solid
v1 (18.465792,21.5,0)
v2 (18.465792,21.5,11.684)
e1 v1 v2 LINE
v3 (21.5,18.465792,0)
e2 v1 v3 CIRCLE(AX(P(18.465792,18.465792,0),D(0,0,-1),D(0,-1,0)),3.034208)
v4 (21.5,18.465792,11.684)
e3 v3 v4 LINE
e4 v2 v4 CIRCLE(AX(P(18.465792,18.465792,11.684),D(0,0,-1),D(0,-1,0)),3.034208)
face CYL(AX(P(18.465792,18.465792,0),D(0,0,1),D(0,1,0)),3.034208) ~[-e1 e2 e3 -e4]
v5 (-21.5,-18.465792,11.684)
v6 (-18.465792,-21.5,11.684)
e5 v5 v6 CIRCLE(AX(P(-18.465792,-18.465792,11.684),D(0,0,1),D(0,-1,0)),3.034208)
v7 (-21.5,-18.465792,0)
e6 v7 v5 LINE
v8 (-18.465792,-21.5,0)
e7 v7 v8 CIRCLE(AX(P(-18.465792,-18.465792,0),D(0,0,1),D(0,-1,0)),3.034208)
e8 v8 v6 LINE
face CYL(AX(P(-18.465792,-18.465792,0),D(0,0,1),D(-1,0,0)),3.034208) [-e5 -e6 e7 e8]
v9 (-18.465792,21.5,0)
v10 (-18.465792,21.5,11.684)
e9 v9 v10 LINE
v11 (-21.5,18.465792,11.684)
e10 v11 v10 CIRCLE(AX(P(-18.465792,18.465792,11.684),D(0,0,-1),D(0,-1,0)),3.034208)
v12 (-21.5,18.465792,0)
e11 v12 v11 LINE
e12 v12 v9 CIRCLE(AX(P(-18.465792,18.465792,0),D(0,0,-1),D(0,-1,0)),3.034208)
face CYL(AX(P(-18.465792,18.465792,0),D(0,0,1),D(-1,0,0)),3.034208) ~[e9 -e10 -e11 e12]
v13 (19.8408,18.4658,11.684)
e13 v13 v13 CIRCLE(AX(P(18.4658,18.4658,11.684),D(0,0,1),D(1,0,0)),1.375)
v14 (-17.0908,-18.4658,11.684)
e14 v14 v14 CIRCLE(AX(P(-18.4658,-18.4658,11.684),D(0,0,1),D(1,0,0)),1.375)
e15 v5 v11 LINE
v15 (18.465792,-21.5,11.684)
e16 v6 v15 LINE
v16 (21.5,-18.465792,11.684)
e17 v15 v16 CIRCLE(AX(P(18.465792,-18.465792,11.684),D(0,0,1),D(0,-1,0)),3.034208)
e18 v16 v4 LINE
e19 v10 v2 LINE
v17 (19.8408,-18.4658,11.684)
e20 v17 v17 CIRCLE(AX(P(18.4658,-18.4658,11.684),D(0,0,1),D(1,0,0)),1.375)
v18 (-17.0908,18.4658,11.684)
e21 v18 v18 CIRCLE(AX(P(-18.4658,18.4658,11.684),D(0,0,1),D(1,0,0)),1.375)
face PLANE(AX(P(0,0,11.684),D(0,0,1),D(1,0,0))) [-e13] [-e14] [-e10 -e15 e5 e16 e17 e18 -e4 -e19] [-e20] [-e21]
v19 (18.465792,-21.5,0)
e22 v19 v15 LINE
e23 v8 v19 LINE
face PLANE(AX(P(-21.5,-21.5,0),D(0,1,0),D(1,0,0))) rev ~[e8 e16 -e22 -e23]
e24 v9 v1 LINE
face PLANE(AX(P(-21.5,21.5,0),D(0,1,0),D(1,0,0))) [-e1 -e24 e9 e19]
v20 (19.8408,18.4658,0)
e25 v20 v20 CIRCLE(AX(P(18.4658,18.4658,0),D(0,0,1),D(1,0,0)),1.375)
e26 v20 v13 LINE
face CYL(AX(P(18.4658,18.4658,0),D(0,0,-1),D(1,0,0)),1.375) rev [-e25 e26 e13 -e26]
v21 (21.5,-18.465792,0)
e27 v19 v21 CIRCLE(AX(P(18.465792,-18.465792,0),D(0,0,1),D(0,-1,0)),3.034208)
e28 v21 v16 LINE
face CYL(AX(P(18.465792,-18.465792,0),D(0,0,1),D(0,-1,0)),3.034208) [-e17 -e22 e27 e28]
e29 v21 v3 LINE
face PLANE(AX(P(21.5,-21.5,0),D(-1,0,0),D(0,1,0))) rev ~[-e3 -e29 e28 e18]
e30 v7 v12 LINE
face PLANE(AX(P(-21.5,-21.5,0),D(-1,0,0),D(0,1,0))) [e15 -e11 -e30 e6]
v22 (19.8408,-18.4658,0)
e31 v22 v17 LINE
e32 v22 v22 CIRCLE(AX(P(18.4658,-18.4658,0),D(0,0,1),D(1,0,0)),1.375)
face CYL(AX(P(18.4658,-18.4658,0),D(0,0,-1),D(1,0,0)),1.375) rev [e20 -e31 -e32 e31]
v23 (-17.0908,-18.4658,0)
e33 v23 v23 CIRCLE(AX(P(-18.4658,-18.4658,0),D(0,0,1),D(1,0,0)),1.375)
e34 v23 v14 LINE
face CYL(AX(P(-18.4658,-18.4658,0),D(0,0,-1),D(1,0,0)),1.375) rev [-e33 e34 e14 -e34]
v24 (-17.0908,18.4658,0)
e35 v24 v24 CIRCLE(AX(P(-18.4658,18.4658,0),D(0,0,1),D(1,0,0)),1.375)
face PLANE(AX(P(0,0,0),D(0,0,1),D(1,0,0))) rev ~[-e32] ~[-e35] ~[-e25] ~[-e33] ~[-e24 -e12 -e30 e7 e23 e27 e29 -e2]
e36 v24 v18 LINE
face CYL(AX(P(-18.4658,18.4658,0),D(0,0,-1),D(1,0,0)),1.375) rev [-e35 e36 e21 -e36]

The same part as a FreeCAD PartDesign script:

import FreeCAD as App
import Part
import Sketcher
from FreeCAD import Vector


def edges_at(feature, points):
    """Names of the edges that pass closest to the given points."""
    edges = feature.Shape.Edges
    near = lambda p: min(range(len(edges)), key=lambda i: edges[i].distToShape(Part.Vertex(*p))[0])
    return sorted({f"Edge{near(p) + 1}" for p in points})

doc = App.newDocument("Part")
body = doc.addObject("PartDesign::Body", "Body")

# Sketch on XY plane
sketch1 = body.newObject("Sketcher::SketchObject", "Sketch")
sketch1.AttachmentSupport = (doc.getObject("XY_Plane"), [""])
sketch1.MapMode = "FlatFace"
sketch1.addGeometry([
    Part.LineSegment(Vector(-21.5, 21.5, 0), Vector(-21.5, -21.5, 0)),  # 0
    Part.LineSegment(Vector(-21.5, -21.5, 0), Vector(21.5, -21.5, 0)),  # 1
    Part.LineSegment(Vector(21.5, -21.5, 0), Vector(21.5, 21.5, 0)),  # 2
    Part.LineSegment(Vector(21.5, 21.5, 0), Vector(-21.5, 21.5, 0)),  # 3
    Part.Circle(Vector(-18.5, -18.5, 0), Vector(0, 0, 1), 1.4),  # 4
    Part.Circle(Vector(18.5, -18.5, 0), Vector(0, 0, 1), 1.4),  # 5
    Part.Circle(Vector(-18.5, 18.5, 0), Vector(0, 0, 1), 1.4),  # 6
    Part.Circle(Vector(18.5, 18.5, 0), Vector(0, 0, 1), 1.4),  # 7
], False)
sketch1.addConstraint([
    Sketcher.Constraint("Coincident", 0, 2, 1, 1),
    Sketcher.Constraint("Coincident", 1, 2, 2, 1),
    Sketcher.Constraint("Coincident", 2, 2, 3, 1),
    Sketcher.Constraint("Coincident", 3, 2, 0, 1),
    Sketcher.Constraint("Vertical", 0),
    Sketcher.Constraint("Horizontal", 1),
    Sketcher.Constraint("Vertical", 2),
    Sketcher.Constraint("Horizontal", 3),
    Sketcher.Constraint("Equal", 4, 5),
    Sketcher.Constraint("Equal", 5, 6),
    Sketcher.Constraint("Equal", 6, 7),
    Sketcher.Constraint("Symmetric", 5, 3, 6, 3, -1, 1),
    Sketcher.Constraint("Symmetric", 4, 3, 7, 3, -1, 1),
    Sketcher.Constraint("Symmetric", 0, 2, 2, 2, -1, 1),
    Sketcher.Constraint("Symmetric", 4, 3, 5, 3, -2),
    Sketcher.Constraint("Equal", 3, 0),
    Sketcher.Constraint("Diameter", 4, 2.75),
    Sketcher.Constraint("DistanceX", 1, 1, 1, 2, 43.0),
    Sketcher.Constraint("DistanceX", 4, 3, -1, 1, 18.4658),
    Sketcher.Constraint("DistanceY", 4, 3, -1, 1, 18.4658),
])
pad1 = body.newObject("PartDesign::Pad", "Pad")
pad1.Profile = sketch1
pad1.Length = 11.684
doc.recompute()

fillet = body.newObject("PartDesign::Fillet", "Fillet")
fillet.Base = (pad1, edges_at(pad1, [
    (-21.5, -21.5, 5.842),
    (21.5, -21.5, 5.842),
    (21.5, 21.5, 5.842),
    (-21.5, 21.5, 5.842),
]))
fillet.Radius = 3.034208

doc.recompute()
